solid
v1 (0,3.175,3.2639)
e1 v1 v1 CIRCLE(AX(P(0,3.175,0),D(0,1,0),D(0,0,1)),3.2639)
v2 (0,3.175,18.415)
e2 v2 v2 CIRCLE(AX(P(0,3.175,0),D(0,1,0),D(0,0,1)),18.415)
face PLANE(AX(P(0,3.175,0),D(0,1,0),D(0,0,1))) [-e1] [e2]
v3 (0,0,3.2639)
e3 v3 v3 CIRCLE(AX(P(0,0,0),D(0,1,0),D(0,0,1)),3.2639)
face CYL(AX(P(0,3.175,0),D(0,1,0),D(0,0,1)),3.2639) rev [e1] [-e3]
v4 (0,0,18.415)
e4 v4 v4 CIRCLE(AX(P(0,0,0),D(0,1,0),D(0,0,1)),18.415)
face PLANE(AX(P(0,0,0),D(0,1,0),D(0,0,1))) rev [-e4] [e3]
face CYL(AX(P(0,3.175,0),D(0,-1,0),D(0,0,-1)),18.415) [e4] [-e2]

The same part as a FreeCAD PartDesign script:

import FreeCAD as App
import Part
import Sketcher
Q = App.Units.Quantity

doc = App.newDocument("Part")
body = doc.addObject("PartDesign::Body", "Body")

sketch1 = body.newObject("Sketcher::SketchObject", "Sketch")
sketch1.AttachmentSupport = (doc.getObject("XZ_Plane"), [""])
sketch1.MapMode = "FlatFace"
sketch1.addGeometry(Part.Circle(App.Vector(0, 0, 0), App.Vector(0, 0, 1), 18.415), False)
sketch1.addConstraint([
    Sketcher.Constraint("Coincident", 0, 3, -1, 1),
    Sketcher.Constraint("Diameter", 0, Q("1.45 in")),
])
pad1 = body.newObject("PartDesign::Pad", "Pad")
pad1.Profile = sketch1
pad1.Length = Q("0.125 in")
pad1.Reversed = True

sketch2 = body.newObject("Sketcher::SketchObject", "Sketch001")
sketch2.AttachmentSupport = (doc.getObject("XZ_Plane"), [""])
sketch2.MapMode = "FlatFace"
sketch2.AttachmentOffset = App.Placement(App.Vector(0, 0, -0.125 * 25.4), App.Rotation())
sketch2.addGeometry(Part.Circle(App.Vector(0, 0, 0), App.Vector(0, 0, 1), 3.2639), False)
sketch2.addConstraint([
    Sketcher.Constraint("Coincident", 0, 3, -1, 1),
    Sketcher.Constraint("Diameter", 0, Q("0.257 in")),
])
doc.recompute()
hole = body.newObject("PartDesign::Hole", "Hole")
hole.Profile = sketch2
hole.ThreadType = "None"
hole.Diameter = Q("0.257 in")
hole.DepthType = "Dimension"
hole.Depth = Q("1 in")
hole.DrillPoint = "Angled"
hole.DrillPointAngle = 118
hole.Reversed = True

doc.recompute()
